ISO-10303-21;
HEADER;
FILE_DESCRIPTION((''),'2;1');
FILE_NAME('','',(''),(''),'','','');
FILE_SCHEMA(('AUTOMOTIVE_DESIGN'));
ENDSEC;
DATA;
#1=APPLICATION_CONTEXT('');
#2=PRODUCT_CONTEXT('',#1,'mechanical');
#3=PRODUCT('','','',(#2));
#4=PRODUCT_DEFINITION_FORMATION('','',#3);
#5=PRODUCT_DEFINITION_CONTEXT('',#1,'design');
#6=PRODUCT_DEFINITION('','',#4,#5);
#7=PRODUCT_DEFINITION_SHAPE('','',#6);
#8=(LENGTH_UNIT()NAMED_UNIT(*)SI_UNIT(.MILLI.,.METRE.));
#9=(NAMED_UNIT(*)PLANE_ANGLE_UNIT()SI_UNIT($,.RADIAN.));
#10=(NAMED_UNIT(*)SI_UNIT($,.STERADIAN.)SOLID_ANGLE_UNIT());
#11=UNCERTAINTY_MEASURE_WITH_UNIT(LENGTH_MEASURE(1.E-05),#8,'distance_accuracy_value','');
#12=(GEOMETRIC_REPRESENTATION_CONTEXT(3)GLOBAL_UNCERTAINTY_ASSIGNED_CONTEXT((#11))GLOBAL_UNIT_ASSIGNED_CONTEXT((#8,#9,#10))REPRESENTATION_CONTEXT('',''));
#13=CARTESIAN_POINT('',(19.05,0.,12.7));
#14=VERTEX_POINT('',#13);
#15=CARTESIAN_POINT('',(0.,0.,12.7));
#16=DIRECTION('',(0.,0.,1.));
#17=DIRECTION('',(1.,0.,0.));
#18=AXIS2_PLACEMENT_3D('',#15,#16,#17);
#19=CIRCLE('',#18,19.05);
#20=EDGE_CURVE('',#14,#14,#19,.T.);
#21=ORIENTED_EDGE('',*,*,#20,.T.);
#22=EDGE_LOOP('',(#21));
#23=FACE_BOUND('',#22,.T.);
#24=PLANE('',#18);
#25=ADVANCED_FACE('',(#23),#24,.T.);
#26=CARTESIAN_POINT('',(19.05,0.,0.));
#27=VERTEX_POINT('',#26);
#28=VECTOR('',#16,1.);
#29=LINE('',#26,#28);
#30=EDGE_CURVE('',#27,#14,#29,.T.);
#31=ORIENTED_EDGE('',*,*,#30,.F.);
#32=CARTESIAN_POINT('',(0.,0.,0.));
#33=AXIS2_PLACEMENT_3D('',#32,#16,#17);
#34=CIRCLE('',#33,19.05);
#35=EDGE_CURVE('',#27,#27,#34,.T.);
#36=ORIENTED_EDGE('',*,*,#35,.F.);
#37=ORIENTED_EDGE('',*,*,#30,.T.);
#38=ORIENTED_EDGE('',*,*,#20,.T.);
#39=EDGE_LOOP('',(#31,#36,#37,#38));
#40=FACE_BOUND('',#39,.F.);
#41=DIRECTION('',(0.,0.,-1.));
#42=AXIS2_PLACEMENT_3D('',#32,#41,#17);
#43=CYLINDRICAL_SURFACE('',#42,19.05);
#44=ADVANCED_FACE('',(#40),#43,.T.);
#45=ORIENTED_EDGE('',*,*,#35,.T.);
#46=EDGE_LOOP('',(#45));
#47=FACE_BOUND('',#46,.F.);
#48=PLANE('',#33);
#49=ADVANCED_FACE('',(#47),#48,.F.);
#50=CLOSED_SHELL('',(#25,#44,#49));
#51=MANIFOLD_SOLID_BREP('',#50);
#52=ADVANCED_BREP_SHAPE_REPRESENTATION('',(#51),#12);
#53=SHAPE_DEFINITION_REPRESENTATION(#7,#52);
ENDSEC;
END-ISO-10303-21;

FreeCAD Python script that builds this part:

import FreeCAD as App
import Part
import Sketcher
Q = App.Units.Quantity

doc = App.newDocument("Part")
body = doc.addObject("PartDesign::Body", "Body")

sketch1 = doc.addObject("Sketcher::SketchObject", "Sketch")
body.addObject(sketch1)
sketch1.AttachmentSupport = (doc.XY_Plane, [""])
sketch1.MapMode = "FlatFace"
sketch1.addGeometry(Part.Circle(App.Vector(0, 0, 0), App.Vector(0, 0, 1), 19), False)
sketch1.addConstraint(Sketcher.Constraint("Coincident", 0, 3, -1, 1))
sketch1.addConstraint(Sketcher.Constraint("Diameter", 0, Q("1.5 in")))
pad1 = doc.addObject("PartDesign::Pad", "Pad")
body.addObject(pad1)
pad1.Profile = sketch1
pad1.Length = Q("0.5 in")

doc.recompute()
